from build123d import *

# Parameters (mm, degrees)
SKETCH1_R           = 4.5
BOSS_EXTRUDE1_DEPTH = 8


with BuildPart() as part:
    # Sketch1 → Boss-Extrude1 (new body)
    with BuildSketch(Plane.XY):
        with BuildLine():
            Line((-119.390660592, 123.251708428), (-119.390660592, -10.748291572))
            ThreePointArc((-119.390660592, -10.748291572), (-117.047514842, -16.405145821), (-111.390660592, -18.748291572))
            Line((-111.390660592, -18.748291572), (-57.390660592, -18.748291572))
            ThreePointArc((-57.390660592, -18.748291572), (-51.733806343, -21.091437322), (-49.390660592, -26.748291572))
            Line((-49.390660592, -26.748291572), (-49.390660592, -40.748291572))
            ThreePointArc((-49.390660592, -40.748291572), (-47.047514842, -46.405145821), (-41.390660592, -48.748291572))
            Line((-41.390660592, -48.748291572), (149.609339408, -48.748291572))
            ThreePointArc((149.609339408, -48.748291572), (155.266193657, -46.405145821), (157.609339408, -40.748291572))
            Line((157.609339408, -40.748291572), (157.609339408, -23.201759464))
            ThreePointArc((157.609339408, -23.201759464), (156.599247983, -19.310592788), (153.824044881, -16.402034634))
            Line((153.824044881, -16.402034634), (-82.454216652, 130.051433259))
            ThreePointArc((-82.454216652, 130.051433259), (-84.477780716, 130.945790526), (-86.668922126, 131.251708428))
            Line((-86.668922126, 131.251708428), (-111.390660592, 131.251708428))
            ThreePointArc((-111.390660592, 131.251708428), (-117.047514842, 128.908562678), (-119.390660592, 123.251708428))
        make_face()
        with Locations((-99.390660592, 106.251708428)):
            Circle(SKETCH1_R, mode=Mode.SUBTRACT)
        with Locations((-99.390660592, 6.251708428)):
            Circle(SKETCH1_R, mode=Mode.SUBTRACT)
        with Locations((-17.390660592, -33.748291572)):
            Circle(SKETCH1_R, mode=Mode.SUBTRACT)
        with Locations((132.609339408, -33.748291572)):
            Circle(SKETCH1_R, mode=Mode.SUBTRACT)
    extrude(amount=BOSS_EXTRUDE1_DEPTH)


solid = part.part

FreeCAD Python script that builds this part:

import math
import FreeCAD as App
import Part
import Sketcher
Q = App.Units.Quantity

doc = App.newDocument("Part")
params = doc.addObject("Spreadsheet::Sheet", "Params")
for row, (alias, value) in enumerate([
    ("sketch1_diameter", "9 mm"),
    ("sketch1_radius", "8 mm"),
    ("sketch1_width", "54 mm"),
    ("sketch1_width2", "191 mm"),
    ("sketch1_height", "134 mm"),
    ("pad1_length", "8 mm"),
], start=1):
    params.set(f"A{row}", alias)
    params.set(f"B{row}", "=" + value)
    params.setAlias(f"B{row}", alias)

body = doc.addObject("PartDesign::Body", "Body")

sketch1 = doc.addObject("Sketcher::SketchObject", "Sketch")
body.addObject(sketch1)
sketch1.AttachmentSupport = (doc.XY_Plane, [""])
sketch1.MapMode = "FlatFace"
sketch1.addGeometry([
    Part.LineSegment(App.Vector(-119.4, 123.3, 0), App.Vector(-119.4, -10.7, 0)),
    Part.ArcOfCircle(Part.Circle(App.Vector(-111.4, -10.7, 0), App.Vector(0, 0, 1), 8), math.radians(180), math.radians(270)),
    Part.LineSegment(App.Vector(-111.4, -18.7, 0), App.Vector(-57.4, -18.7, 0)),
    Part.ArcOfCircle(Part.Circle(App.Vector(-57.4, -26.7, 0), App.Vector(0, 0, 1), 8), math.radians(0), math.radians(90)),
    Part.LineSegment(App.Vector(-49.4, -26.7, 0), App.Vector(-49.4, -40.7, 0)),
    Part.ArcOfCircle(Part.Circle(App.Vector(-41.4, -40.7, 0), App.Vector(0, 0, 1), 8), math.radians(180), math.radians(270)),
    Part.LineSegment(App.Vector(-41.4, -48.7, 0), App.Vector(149.6, -48.7, 0)),
    Part.ArcOfCircle(Part.Circle(App.Vector(149.6, -40.7, 0), App.Vector(0, 0, 1), 8), math.radians(-90), math.radians(0)),
    Part.LineSegment(App.Vector(157.6, -40.7, 0), App.Vector(157.6, -23.2, 0)),
    Part.ArcOfCircle(Part.Circle(App.Vector(149.6, -23.2, 0), App.Vector(0, 0, 1), 8), math.radians(0), math.radians(58)),
    Part.LineSegment(App.Vector(153.8, -16.4, 0), App.Vector(-82.5, 130.1, 0)),
    Part.ArcOfCircle(Part.Circle(App.Vector(-86.7, 123.3, 0), App.Vector(0, 0, 1), 8), math.radians(58), math.radians(90)),
    Part.LineSegment(App.Vector(-86.7, 131.3, 0), App.Vector(-111.4, 131.3, 0)),
    Part.ArcOfCircle(Part.Circle(App.Vector(-111.4, 123.3, 0), App.Vector(0, 0, 1), 8), math.radians(90), math.radians(180)),
    Part.Circle(App.Vector(-17.4, -33.7, 0), App.Vector(0, 0, 1), 4.5),
    Part.Circle(App.Vector(-99.4, 6.3, 0), App.Vector(0, 0, 1), 4.5),
    Part.Circle(App.Vector(132.6, -33.7, 0), App.Vector(0, 0, 1), 4.5),
    Part.Circle(App.Vector(-99.4, 106.3, 0), App.Vector(0, 0, 1), 4.5),
], False)
sketch1.addConstraint([
    Sketcher.Constraint("Tangent", 0, 2, 1, 1),
    Sketcher.Constraint("Tangent", 1, 2, 2, 1),
    Sketcher.Constraint("Tangent", 2, 2, 3, 2),
    Sketcher.Constraint("Tangent", 3, 1, 4, 1),
    Sketcher.Constraint("Tangent", 4, 2, 5, 1),
    Sketcher.Constraint("Tangent", 5, 2, 6, 1),
    Sketcher.Constraint("Tangent", 6, 2, 7, 1),
    Sketcher.Constraint("Tangent", 7, 2, 8, 1),
    Sketcher.Constraint("Tangent", 8, 2, 9, 1),
    Sketcher.Constraint("Tangent", 9, 2, 10, 1),
    Sketcher.Constraint("Tangent", 10, 2, 11, 1),
    Sketcher.Constraint("Tangent", 11, 2, 12, 1),
    Sketcher.Constraint("Tangent", 12, 2, 13, 1),
    Sketcher.Constraint("Tangent", 13, 2, 0, 1),
    Sketcher.Constraint("Vertical", 0),
    Sketcher.Constraint("Horizontal", 2),
    Sketcher.Constraint("Vertical", 4),
    Sketcher.Constraint("Horizontal", 6),
    Sketcher.Constraint("Vertical", 8),
    Sketcher.Constraint("Horizontal", 12),
    Sketcher.Constraint("Equal", 1, 3),
    Sketcher.Constraint("Equal", 3, 5),
    Sketcher.Constraint("Equal", 5, 7),
    Sketcher.Constraint("Equal", 7, 9),
    Sketcher.Constraint("Equal", 9, 11),
    Sketcher.Constraint("Equal", 11, 13),
    Sketcher.Constraint("Equal", 14, 15),
    Sketcher.Constraint("Equal", 15, 16),
    Sketcher.Constraint("Equal", 16, 17),
    Sketcher.Constraint("Horizontal", 14, 3, 16, 3),
    Sketcher.Constraint("Vertical", 15, 3, 17, 3),
    Sketcher.Constraint("Diameter", 14, Q("9 mm")),
    Sketcher.Constraint("Radius", 1, Q("8 mm")),
    Sketcher.Constraint("DistanceX", 2, 1, 2, 2, Q("54 mm")),
    Sketcher.Constraint("DistanceX", 6, 1, 6, 2, Q("191 mm")),
    Sketcher.Constraint("DistanceY", 0, 2, 0, 1, Q("134 mm")),
    Sketcher.Constraint("DistanceY", 4, 2, 4, 1, Q("14 mm")),
    Sketcher.Constraint("DistanceX", 5, 3, 14, 3, Q("24 mm")),
    Sketcher.Constraint("DistanceY", 5, 3, 14, 3, Q("7 mm")),
    Sketcher.Constraint("DistanceX", 1, 3, 15, 3, Q("12 mm")),
    Sketcher.Constraint("DistanceY", 1, 3, 15, 3, Q("17 mm")),
    Sketcher.Constraint("DistanceX", 16, 3, 7, 3, Q("17 mm")),
    Sketcher.Constraint("DistanceY", 17, 3, 13, 3, Q("17 mm")),
    Sketcher.Constraint("DistanceX", 12, 2, 12, 1, Q("24.721738 mm")),
    Sketcher.Constraint("DistanceY", 8, 1, 8, 2, Q("17.546532 mm")),
    Sketcher.Constraint("DistanceX", 1, 3, -1, 1, Q("111.390661 mm")),
    Sketcher.Constraint("DistanceY", 1, 3, -1, 1, Q("10.748292 mm")),
])
sketch1.setExpression("Constraints[31]", "Params.sketch1_diameter")
sketch1.setExpression("Constraints[32]", "Params.sketch1_radius")
sketch1.setExpression("Constraints[33]", "Params.sketch1_width")
sketch1.setExpression("Constraints[34]", "Params.sketch1_width2")
sketch1.setExpression("Constraints[35]", "Params.sketch1_height")
pad1 = doc.addObject("PartDesign::Pad", "Pad")
body.addObject(pad1)
pad1.Profile = sketch1
pad1.setExpression("Length", "Params.pad1_length")

doc.recompute()
